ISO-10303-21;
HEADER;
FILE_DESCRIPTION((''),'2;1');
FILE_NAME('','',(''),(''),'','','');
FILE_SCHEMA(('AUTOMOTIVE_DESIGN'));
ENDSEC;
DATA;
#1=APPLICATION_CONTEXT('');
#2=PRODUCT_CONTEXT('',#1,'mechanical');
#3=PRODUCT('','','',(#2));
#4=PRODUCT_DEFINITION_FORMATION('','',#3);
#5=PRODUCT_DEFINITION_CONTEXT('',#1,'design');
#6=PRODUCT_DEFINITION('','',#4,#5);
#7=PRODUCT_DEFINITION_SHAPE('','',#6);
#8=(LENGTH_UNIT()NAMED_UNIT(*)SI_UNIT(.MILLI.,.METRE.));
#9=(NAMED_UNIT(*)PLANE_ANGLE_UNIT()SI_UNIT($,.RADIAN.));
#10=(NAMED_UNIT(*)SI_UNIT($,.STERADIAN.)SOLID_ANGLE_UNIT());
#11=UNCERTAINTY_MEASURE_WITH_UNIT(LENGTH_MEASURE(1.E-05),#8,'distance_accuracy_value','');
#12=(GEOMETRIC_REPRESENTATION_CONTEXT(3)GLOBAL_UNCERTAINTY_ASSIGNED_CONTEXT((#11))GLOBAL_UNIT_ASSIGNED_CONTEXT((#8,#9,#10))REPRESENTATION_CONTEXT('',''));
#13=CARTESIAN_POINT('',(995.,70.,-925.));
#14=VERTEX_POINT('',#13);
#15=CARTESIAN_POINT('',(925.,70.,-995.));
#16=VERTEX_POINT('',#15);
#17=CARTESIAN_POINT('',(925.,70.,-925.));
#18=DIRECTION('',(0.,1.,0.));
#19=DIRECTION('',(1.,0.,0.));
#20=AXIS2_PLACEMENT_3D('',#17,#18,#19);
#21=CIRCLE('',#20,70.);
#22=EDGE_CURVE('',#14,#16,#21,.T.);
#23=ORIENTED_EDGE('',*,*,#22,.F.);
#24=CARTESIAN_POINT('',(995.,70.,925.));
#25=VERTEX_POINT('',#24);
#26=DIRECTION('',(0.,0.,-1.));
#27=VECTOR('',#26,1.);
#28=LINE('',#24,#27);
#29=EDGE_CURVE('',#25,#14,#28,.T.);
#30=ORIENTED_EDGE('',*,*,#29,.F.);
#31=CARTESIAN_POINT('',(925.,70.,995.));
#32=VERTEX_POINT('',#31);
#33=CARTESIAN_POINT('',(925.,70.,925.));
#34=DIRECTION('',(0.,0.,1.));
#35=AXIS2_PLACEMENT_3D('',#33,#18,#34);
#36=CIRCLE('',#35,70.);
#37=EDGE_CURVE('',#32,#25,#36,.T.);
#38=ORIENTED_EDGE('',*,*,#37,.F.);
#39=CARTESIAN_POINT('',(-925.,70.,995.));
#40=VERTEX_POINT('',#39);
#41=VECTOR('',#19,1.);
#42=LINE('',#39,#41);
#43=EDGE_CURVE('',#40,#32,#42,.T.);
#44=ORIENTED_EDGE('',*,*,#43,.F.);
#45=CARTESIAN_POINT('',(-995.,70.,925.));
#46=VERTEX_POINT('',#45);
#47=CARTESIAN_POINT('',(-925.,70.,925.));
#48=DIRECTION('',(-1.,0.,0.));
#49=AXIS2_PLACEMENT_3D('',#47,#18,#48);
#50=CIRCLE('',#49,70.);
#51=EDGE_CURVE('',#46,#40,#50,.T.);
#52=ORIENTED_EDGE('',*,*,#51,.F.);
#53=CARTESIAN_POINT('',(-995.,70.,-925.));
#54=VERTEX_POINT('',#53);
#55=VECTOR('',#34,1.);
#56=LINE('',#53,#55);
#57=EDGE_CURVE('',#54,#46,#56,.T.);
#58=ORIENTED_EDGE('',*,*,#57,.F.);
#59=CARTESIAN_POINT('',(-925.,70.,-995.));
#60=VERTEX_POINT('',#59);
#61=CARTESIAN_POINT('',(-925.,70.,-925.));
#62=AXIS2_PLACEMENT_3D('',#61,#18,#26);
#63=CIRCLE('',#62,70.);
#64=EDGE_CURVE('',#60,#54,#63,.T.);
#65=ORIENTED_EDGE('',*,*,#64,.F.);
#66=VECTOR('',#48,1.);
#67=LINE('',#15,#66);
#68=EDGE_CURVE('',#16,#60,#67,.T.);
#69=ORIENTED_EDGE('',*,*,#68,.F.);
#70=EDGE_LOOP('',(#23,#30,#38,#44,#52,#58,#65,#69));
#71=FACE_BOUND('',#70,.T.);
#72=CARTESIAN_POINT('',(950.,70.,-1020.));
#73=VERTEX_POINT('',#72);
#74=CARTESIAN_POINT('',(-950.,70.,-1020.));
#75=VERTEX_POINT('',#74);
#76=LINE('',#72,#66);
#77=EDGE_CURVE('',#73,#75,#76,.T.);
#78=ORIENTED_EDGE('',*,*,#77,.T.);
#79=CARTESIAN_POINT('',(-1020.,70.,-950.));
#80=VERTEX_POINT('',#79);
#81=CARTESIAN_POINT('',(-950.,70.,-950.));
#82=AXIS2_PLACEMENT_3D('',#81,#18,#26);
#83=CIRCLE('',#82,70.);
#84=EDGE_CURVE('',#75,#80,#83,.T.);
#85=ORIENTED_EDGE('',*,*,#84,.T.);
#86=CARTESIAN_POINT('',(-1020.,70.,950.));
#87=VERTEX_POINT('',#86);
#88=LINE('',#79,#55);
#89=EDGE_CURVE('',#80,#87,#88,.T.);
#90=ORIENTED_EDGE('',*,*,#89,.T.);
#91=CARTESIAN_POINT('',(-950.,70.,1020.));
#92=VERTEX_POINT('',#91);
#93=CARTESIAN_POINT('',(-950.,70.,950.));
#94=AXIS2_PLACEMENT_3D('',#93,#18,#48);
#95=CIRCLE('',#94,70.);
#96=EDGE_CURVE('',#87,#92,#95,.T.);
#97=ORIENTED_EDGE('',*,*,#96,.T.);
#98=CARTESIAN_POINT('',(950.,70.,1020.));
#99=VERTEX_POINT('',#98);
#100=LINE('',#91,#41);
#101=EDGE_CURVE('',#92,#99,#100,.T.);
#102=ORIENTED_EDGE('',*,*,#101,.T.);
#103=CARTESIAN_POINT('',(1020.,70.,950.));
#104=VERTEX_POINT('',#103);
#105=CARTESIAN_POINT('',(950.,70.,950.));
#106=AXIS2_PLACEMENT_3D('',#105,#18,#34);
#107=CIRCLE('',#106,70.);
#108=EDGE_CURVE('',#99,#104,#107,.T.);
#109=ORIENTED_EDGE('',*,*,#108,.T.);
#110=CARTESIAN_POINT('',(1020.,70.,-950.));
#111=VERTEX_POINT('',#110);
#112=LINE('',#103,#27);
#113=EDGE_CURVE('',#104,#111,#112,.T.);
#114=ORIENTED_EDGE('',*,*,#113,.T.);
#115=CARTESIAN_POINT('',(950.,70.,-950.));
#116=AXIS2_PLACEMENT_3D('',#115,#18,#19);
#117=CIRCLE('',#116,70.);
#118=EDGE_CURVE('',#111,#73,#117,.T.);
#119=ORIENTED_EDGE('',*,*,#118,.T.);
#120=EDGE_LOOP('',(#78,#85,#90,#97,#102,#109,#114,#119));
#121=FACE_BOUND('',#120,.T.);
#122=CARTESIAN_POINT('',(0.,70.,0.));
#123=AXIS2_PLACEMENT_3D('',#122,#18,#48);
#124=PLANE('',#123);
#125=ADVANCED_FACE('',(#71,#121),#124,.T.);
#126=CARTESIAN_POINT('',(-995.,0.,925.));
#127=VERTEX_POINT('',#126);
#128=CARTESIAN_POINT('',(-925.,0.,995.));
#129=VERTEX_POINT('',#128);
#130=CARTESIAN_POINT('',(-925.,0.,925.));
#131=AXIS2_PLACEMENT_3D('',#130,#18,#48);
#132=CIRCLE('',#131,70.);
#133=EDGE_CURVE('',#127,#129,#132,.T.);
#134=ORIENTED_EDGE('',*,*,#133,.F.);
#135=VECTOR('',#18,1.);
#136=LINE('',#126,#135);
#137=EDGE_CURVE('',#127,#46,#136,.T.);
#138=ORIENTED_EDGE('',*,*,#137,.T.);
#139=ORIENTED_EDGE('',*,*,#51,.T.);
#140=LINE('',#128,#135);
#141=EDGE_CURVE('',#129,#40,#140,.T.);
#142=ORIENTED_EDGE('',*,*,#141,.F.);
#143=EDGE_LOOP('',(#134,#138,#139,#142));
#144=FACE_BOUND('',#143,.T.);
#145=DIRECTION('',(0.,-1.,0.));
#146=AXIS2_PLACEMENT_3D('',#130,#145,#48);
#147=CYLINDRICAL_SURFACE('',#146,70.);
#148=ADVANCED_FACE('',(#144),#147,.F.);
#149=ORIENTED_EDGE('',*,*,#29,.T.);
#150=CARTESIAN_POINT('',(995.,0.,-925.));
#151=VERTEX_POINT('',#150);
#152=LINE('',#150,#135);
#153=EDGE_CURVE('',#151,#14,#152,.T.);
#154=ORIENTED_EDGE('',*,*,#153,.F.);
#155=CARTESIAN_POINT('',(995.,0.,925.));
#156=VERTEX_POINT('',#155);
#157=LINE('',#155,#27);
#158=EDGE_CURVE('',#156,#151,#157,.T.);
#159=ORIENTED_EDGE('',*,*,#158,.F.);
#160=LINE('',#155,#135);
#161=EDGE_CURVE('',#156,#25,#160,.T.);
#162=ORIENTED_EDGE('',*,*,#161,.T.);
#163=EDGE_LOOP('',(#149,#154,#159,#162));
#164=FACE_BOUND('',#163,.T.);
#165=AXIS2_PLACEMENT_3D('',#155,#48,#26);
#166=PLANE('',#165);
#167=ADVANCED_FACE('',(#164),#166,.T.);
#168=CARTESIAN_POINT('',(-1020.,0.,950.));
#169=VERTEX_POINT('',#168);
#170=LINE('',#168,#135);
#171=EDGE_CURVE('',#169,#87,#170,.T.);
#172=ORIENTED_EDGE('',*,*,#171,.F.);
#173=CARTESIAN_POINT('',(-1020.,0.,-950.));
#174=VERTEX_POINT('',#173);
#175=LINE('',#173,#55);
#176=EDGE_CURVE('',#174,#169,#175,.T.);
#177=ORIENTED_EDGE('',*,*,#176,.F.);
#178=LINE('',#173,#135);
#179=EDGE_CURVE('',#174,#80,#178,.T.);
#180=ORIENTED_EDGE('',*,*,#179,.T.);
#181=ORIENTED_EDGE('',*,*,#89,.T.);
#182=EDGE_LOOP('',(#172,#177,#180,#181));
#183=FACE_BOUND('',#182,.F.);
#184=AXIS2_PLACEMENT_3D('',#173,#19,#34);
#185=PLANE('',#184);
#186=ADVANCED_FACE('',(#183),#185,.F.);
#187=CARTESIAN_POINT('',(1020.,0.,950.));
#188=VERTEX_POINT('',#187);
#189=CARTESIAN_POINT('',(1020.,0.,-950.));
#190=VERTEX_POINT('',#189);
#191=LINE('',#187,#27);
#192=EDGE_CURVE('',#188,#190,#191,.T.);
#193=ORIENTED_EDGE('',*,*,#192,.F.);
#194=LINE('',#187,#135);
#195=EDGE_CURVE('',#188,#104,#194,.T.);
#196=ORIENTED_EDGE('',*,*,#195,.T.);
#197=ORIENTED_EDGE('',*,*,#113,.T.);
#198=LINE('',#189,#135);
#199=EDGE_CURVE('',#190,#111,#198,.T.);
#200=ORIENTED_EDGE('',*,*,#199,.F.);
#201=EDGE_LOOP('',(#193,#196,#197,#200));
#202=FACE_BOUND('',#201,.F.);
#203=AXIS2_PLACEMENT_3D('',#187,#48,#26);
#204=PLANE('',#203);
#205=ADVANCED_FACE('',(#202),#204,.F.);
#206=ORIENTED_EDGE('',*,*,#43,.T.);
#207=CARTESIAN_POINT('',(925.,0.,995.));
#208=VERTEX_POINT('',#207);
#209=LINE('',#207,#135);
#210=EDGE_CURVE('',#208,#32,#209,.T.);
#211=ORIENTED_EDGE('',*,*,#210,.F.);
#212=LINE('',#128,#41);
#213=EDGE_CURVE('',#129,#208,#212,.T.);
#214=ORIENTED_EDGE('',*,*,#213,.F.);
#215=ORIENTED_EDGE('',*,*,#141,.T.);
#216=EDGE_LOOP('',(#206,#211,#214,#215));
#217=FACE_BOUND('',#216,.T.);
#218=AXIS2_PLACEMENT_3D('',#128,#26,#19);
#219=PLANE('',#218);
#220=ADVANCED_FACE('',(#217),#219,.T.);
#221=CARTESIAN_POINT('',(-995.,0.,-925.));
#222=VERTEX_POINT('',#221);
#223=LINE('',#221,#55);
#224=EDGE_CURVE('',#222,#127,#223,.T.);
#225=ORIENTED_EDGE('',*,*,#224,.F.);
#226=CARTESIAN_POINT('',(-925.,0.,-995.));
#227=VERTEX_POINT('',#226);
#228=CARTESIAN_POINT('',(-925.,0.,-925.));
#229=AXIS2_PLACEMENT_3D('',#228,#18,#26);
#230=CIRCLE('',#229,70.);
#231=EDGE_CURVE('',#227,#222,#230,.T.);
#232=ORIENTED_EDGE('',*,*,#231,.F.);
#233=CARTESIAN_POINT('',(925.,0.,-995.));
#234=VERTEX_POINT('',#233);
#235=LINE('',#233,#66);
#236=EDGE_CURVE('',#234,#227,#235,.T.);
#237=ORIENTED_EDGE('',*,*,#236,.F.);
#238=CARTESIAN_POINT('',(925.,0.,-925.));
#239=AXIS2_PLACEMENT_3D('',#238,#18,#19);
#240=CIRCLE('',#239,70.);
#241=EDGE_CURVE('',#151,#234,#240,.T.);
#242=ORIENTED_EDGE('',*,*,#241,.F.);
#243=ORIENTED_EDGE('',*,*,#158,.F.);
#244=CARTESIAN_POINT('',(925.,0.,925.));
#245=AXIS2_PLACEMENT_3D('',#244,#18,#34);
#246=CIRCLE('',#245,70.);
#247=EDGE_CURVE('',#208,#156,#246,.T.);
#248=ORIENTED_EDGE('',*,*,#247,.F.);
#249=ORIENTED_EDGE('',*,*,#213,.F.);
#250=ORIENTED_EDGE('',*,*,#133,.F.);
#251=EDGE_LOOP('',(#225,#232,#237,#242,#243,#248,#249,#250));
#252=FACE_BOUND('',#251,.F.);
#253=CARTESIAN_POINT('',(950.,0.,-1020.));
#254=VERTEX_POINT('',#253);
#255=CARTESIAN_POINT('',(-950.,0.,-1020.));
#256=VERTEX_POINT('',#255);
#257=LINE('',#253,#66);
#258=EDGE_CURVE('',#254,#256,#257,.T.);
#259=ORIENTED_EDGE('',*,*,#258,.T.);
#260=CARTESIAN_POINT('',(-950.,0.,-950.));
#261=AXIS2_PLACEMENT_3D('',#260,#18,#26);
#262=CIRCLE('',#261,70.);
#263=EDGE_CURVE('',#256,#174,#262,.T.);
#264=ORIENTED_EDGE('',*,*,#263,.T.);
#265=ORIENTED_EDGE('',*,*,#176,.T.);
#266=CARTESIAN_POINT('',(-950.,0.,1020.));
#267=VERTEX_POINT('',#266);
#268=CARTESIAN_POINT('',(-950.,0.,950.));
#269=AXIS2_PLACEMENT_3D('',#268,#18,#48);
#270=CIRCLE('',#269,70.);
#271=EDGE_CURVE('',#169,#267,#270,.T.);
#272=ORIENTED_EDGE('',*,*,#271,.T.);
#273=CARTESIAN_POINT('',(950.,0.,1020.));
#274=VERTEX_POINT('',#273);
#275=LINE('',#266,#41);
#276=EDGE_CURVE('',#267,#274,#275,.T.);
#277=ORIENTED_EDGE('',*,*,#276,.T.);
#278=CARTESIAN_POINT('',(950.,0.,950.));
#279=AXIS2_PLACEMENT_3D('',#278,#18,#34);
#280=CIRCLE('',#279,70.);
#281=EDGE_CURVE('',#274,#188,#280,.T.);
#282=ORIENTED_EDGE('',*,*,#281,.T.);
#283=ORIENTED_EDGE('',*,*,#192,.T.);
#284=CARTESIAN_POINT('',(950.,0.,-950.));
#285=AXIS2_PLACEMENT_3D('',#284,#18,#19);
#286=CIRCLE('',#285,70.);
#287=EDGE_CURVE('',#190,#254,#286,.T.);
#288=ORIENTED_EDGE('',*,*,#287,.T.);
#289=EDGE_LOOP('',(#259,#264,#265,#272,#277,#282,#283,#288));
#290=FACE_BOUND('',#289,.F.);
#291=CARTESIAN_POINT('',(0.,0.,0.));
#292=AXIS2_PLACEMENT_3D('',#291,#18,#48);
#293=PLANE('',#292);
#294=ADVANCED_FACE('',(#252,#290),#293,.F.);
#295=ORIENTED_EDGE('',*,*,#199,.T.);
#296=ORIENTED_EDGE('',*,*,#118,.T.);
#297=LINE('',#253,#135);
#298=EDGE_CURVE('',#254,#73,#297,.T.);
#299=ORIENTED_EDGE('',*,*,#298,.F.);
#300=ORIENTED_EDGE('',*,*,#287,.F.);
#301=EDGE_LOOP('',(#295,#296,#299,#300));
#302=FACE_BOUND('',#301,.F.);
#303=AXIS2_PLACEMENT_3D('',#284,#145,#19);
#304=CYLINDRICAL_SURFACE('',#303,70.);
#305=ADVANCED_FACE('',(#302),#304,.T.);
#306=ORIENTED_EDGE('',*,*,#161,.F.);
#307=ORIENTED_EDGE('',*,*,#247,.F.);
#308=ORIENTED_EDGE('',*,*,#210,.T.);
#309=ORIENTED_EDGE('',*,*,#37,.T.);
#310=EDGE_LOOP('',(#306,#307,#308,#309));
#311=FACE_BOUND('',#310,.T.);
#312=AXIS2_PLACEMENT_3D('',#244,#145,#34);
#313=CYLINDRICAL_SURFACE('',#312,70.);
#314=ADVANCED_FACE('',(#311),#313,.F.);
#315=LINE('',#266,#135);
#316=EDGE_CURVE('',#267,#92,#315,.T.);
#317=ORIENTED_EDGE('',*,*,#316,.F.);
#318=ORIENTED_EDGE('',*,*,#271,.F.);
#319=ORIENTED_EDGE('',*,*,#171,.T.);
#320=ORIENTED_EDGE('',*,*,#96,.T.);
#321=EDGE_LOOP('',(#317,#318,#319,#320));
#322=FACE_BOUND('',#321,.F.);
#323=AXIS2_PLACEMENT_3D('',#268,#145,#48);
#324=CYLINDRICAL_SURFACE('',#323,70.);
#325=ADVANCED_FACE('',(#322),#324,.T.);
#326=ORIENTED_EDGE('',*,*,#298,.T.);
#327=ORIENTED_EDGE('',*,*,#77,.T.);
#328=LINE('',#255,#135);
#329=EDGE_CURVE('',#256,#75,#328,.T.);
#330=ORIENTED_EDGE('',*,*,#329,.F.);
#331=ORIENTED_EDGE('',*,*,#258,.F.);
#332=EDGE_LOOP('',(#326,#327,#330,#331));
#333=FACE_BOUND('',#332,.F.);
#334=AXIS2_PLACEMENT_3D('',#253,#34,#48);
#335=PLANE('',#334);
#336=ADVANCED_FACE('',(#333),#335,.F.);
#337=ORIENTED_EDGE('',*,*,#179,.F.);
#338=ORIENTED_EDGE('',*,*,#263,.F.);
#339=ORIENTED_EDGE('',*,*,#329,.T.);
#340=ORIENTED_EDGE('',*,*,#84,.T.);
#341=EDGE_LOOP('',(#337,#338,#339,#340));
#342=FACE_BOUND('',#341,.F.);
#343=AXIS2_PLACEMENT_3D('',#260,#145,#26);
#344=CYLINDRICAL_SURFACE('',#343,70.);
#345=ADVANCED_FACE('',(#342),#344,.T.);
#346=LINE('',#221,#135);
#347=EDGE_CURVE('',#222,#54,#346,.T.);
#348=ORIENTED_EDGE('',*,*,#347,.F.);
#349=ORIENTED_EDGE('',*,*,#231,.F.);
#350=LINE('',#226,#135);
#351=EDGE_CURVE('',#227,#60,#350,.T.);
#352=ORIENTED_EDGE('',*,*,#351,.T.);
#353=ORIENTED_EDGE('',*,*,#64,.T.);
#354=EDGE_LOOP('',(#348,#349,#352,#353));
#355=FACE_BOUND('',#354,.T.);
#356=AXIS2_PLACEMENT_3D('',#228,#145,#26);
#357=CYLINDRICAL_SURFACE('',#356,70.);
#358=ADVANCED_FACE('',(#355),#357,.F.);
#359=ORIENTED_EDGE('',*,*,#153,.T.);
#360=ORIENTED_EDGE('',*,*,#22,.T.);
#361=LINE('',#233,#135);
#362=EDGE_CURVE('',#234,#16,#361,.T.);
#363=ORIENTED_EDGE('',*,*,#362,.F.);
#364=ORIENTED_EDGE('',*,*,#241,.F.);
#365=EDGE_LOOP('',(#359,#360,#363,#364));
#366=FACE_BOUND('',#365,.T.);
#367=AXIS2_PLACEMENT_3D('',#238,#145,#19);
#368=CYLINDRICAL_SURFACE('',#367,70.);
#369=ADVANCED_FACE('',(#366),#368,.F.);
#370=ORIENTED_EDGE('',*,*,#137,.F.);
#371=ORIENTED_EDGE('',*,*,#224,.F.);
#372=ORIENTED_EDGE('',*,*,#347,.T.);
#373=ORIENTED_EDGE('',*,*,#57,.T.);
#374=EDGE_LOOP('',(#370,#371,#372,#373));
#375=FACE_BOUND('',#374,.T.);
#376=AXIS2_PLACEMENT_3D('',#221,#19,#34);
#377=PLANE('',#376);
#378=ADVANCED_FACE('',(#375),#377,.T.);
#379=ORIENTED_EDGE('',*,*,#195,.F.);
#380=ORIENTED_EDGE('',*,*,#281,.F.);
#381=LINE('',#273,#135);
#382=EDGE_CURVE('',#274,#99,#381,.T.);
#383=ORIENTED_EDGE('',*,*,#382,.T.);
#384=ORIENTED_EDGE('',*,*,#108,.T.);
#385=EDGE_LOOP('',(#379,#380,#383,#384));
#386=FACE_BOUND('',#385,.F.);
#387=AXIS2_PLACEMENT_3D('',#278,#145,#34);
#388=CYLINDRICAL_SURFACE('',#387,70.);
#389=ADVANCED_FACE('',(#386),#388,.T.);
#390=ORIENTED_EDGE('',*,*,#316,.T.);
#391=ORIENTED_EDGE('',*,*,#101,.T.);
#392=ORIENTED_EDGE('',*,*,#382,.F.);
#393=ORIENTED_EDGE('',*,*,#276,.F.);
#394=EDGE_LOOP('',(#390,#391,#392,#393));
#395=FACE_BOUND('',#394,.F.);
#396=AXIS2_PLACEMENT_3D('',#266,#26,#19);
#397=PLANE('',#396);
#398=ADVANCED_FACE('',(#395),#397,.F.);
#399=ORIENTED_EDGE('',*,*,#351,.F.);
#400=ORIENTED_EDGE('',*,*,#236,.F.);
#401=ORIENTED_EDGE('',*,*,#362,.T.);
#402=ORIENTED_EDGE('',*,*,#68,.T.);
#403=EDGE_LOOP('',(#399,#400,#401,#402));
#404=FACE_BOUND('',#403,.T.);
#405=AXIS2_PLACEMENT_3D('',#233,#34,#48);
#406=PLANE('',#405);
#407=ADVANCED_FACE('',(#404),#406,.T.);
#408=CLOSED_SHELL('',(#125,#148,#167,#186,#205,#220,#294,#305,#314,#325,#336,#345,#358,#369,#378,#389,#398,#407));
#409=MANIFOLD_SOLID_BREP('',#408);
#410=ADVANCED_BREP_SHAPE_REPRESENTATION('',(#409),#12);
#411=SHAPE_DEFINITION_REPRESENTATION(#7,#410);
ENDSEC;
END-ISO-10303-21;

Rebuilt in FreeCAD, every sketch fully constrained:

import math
import FreeCAD as App
import Part
import Sketcher

V = App.Vector
Q = App.Units.Quantity

doc = App.newDocument("Part")
body = doc.addObject("PartDesign::Body", "Body")

# Sketch on XZ plane
sketch1 = body.newObject("Sketcher::SketchObject", "Sketch")
sketch1.AttachmentSupport = (doc.getObject("XZ_Plane"), [""])
sketch1.MapMode = "FlatFace"
sketch1.addGeometry([
    Part.ArcOfCircle(Part.Circle(V(950, -950, 0), V(0, 0, 1), 70), math.radians(-90), math.radians(0)),  # 0
    Part.LineSegment(V(950, -1020, 0), V(-950, -1020, 0)),  # 1
    Part.ArcOfCircle(Part.Circle(V(-950, -950, 0), V(0, 0, 1), 70), math.radians(180), math.radians(270)),  # 2
    Part.LineSegment(V(-1020, -950, 0), V(-1020, 950, 0)),  # 3
    Part.ArcOfCircle(Part.Circle(V(-950, 950, 0), V(0, 0, 1), 70), math.radians(90), math.radians(180)),  # 4
    Part.LineSegment(V(-950, 1020, 0), V(950, 1020, 0)),  # 5
    Part.ArcOfCircle(Part.Circle(V(950, 950, 0), V(0, 0, 1), 70), math.radians(0), math.radians(90)),  # 6
    Part.LineSegment(V(1020, 950, 0), V(1020, -950, 0)),  # 7
    Part.LineSegment(V(-925, -995, 0), V(925, -995, 0)),  # 8
    Part.ArcOfCircle(Part.Circle(V(925, -925, 0), V(0, 0, 1), 70), math.radians(-90), math.radians(0)),  # 9
    Part.LineSegment(V(995, -925, 0), V(995, 925, 0)),  # 10
    Part.ArcOfCircle(Part.Circle(V(925, 925, 0), V(0, 0, 1), 70), math.radians(0), math.radians(90)),  # 11
    Part.LineSegment(V(925, 995, 0), V(-925, 995, 0)),  # 12
    Part.ArcOfCircle(Part.Circle(V(-925, 925, 0), V(0, 0, 1), 70), math.radians(90), math.radians(180)),  # 13
    Part.LineSegment(V(-995, 925, 0), V(-995, -925, 0)),  # 14
    Part.ArcOfCircle(Part.Circle(V(-925, -925, 0), V(0, 0, 1), 70), math.radians(180), math.radians(270)),  # 15
], False)
sketch1.addConstraint([
    Sketcher.Constraint("Tangent", 0, 1, 1, 1),
    Sketcher.Constraint("Tangent", 1, 2, 2, 2),
    Sketcher.Constraint("Tangent", 2, 1, 3, 1),
    Sketcher.Constraint("Tangent", 3, 2, 4, 2),
    Sketcher.Constraint("Tangent", 4, 1, 5, 1),
    Sketcher.Constraint("Tangent", 5, 2, 6, 2),
    Sketcher.Constraint("Tangent", 6, 1, 7, 1),
    Sketcher.Constraint("Tangent", 7, 2, 0, 2),
    Sketcher.Constraint("Tangent", 8, 2, 9, 1),
    Sketcher.Constraint("Tangent", 9, 2, 10, 1),
    Sketcher.Constraint("Tangent", 10, 2, 11, 1),
    Sketcher.Constraint("Tangent", 11, 2, 12, 1),
    Sketcher.Constraint("Tangent", 12, 2, 13, 1),
    Sketcher.Constraint("Tangent", 13, 2, 14, 1),
    Sketcher.Constraint("Tangent", 14, 2, 15, 1),
    Sketcher.Constraint("Tangent", 15, 2, 8, 1),
    Sketcher.Constraint("Horizontal", 1),
    Sketcher.Constraint("Vertical", 3),
    Sketcher.Constraint("Horizontal", 5),
    Sketcher.Constraint("Vertical", 7),
    Sketcher.Constraint("Horizontal", 8),
    Sketcher.Constraint("Vertical", 10),
    Sketcher.Constraint("Horizontal", 12),
    Sketcher.Constraint("Vertical", 14),
    Sketcher.Constraint("Equal", 0, 2),
    Sketcher.Constraint("Equal", 2, 4),
    Sketcher.Constraint("Equal", 4, 6),
    Sketcher.Constraint("Equal", 6, 9),
    Sketcher.Constraint("Equal", 9, 11),
    Sketcher.Constraint("Equal", 11, 13),
    Sketcher.Constraint("Equal", 13, 15),
    Sketcher.Constraint("Symmetric", 0, 3, 4, 3, -1, 1),
    Sketcher.Constraint("Symmetric", 9, 3, 13, 3, -1, 1),
    Sketcher.Constraint("Equal", 5, 3),
    Sketcher.Constraint("Equal", 12, 10),
    Sketcher.Constraint("Radius", 0, Q("70 mm")),
    Sketcher.Constraint("DistanceX", 1, 2, 1, 1, Q("1900 mm")),
    Sketcher.Constraint("DistanceX", 8, 1, 8, 2, Q("1850 mm")),
])
pad1 = body.newObject("PartDesign::Pad", "Pad")
pad1.Profile = sketch1
pad1.Length = 70
pad1.Reversed = True

doc.recompute()
